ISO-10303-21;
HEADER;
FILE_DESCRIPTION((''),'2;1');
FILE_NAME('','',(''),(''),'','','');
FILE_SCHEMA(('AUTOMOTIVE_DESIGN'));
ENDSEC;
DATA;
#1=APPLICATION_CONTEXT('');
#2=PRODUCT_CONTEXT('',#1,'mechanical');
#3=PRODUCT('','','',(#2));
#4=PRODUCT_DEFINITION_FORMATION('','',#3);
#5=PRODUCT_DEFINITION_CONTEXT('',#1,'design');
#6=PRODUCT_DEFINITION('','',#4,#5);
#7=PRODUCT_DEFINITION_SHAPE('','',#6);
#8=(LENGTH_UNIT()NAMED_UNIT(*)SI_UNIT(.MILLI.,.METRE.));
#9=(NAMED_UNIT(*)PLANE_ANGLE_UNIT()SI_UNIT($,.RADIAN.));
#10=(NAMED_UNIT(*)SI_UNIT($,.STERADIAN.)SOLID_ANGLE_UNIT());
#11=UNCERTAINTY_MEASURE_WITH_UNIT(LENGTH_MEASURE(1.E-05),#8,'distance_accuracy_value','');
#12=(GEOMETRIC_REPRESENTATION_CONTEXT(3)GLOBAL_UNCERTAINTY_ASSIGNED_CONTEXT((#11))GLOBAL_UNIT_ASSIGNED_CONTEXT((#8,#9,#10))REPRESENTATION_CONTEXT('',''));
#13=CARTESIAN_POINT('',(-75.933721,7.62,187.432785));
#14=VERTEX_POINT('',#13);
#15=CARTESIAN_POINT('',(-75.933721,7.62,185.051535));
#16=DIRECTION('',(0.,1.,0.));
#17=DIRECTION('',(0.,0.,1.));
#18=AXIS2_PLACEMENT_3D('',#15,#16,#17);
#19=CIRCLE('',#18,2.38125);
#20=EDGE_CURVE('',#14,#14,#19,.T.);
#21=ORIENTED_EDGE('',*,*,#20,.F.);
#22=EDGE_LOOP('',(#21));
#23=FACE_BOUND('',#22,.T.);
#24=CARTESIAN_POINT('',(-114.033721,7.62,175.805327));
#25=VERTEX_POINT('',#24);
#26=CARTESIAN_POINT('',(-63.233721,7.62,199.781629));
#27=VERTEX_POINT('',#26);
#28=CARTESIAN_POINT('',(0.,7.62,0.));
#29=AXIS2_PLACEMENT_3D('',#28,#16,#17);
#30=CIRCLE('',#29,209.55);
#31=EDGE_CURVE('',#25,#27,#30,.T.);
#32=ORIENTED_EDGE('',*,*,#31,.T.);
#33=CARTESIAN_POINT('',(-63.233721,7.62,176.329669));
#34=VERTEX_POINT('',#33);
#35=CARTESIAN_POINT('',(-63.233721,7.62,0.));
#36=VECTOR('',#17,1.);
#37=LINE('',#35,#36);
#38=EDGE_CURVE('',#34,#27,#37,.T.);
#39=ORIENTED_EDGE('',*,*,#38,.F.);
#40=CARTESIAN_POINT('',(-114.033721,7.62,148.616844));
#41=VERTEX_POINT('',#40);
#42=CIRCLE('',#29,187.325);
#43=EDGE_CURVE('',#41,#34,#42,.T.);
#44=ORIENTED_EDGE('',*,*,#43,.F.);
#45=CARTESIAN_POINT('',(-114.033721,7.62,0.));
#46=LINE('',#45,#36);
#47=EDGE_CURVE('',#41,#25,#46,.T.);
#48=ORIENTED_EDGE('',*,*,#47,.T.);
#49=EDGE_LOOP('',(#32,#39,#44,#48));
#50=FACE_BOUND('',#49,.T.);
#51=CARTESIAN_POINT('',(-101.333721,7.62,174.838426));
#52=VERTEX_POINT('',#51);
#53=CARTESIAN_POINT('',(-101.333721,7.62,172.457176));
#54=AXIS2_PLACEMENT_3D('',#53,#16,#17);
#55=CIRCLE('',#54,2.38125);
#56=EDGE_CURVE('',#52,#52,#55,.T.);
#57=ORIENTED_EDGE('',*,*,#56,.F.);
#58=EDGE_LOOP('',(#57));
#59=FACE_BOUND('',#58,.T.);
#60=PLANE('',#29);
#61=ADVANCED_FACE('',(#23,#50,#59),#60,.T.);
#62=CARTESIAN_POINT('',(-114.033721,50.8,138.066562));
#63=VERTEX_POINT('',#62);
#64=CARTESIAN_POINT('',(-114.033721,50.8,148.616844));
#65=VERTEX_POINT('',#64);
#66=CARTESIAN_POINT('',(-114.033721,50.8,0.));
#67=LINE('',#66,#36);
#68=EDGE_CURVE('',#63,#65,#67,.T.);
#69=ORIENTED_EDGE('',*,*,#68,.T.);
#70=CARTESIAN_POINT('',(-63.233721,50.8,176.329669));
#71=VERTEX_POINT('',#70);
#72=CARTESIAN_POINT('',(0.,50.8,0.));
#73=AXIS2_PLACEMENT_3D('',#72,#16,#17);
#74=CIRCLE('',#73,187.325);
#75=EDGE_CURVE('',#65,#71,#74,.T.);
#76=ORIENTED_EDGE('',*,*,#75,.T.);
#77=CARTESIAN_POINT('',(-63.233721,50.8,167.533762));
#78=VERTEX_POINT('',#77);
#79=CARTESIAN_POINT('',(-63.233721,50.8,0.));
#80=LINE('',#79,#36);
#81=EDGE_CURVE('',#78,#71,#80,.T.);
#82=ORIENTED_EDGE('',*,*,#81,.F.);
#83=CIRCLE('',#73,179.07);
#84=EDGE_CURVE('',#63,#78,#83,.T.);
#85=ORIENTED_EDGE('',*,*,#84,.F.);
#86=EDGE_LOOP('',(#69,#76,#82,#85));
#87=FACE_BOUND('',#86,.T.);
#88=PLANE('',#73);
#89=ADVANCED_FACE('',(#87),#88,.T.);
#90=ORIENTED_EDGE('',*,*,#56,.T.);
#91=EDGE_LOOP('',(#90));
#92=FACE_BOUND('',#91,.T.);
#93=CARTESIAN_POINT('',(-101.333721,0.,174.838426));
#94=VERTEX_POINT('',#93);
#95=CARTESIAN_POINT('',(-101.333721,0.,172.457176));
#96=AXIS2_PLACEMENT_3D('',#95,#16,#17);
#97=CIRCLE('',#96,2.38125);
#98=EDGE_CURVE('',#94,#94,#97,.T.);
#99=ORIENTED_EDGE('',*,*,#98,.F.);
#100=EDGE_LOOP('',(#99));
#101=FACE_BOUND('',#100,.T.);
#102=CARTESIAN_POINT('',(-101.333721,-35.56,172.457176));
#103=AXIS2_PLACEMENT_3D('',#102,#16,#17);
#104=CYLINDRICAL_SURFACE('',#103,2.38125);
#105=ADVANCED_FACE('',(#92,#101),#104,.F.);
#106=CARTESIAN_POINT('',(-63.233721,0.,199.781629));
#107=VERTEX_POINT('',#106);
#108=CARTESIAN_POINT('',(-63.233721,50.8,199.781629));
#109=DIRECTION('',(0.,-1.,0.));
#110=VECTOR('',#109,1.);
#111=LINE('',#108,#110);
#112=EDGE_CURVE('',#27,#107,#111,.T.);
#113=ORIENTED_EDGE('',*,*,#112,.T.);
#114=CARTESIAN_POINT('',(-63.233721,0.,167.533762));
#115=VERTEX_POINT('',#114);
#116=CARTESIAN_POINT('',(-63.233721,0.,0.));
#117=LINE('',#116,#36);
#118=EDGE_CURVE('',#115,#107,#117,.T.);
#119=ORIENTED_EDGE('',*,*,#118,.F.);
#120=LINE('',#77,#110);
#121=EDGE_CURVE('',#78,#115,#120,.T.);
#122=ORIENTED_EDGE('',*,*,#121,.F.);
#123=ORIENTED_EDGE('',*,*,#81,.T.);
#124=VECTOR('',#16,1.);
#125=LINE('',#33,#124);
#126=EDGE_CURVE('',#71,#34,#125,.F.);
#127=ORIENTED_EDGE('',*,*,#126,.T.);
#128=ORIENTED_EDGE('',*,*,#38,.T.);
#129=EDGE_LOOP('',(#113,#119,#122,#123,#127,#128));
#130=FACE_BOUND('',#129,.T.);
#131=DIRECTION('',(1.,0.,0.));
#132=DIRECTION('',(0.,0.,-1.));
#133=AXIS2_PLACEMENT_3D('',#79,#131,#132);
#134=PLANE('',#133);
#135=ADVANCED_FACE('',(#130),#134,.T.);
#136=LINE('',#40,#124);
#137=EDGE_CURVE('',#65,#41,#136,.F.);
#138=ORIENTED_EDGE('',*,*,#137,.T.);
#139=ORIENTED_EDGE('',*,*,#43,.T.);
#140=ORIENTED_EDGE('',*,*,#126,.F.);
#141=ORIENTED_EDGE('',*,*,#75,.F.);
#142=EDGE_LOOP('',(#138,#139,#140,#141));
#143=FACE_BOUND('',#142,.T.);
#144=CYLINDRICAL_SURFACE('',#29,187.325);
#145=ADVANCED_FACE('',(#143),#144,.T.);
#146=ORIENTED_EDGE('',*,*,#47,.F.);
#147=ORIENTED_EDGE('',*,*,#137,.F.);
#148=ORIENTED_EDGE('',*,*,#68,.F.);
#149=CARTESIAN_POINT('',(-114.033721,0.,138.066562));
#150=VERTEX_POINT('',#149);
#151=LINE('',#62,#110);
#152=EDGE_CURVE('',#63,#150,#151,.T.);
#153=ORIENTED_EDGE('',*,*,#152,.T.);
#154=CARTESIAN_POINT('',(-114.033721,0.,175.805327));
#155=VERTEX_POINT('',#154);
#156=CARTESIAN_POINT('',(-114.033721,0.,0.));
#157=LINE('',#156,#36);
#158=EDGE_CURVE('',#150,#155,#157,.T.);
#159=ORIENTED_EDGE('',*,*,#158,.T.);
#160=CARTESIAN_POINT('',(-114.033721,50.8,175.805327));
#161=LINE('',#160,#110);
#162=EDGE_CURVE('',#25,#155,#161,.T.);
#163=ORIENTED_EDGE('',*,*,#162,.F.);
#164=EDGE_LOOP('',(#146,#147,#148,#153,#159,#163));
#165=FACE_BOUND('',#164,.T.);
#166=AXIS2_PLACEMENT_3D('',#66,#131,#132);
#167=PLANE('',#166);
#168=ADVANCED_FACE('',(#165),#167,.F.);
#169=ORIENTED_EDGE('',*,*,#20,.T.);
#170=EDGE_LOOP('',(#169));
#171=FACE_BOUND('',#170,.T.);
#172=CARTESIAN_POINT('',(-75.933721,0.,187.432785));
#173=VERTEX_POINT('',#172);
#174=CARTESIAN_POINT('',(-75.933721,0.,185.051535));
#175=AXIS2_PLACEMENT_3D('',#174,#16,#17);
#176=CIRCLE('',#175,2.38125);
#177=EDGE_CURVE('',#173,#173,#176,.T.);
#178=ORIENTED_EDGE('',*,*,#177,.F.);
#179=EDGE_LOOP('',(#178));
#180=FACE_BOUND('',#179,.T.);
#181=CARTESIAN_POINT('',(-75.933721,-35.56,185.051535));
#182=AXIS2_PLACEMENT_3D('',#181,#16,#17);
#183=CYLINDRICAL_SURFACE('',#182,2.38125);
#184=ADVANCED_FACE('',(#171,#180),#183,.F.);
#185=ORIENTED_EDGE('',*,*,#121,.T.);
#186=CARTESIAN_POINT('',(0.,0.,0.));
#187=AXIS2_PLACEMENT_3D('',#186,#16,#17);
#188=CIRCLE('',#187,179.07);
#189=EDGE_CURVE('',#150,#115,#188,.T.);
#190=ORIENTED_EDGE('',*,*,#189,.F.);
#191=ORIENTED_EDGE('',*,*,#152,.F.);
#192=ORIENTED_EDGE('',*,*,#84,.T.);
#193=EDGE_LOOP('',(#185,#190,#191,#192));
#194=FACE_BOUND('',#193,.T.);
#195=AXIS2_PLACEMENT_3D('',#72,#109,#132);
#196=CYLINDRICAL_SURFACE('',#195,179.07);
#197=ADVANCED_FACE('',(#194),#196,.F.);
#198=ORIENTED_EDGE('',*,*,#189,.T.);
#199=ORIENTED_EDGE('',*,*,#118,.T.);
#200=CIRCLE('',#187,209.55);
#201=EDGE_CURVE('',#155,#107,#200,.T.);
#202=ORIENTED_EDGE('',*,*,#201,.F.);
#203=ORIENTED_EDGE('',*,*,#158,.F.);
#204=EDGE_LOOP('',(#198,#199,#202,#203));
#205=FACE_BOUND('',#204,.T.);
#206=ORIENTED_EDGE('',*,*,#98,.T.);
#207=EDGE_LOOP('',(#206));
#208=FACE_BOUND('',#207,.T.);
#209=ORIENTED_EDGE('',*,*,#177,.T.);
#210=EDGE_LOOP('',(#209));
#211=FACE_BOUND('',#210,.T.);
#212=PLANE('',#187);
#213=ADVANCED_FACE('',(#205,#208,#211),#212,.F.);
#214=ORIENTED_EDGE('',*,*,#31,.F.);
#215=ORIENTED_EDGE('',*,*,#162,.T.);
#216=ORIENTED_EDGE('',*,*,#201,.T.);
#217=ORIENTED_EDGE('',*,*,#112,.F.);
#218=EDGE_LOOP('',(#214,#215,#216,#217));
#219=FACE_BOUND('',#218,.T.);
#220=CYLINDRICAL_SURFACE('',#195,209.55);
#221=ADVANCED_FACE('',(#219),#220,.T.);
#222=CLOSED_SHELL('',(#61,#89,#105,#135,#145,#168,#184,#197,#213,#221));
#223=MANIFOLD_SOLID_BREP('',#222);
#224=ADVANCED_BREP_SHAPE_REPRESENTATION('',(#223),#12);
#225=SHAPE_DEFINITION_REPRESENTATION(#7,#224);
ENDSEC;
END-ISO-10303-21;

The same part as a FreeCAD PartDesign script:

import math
import FreeCAD as App
import Part
import Sketcher

V = App.Vector
Q = App.Units.Quantity

doc = App.newDocument("Part")
params = doc.addObject("Spreadsheet::Sheet", "Params")
for row, (alias, value) in enumerate([
    ("sketch1_radius", "7.05 in"),
    ("sketch1_radius2", "8.25 in"),
    ("pad1_length", "2 in"),
    ("sketch2_diameter", "16.5 in"),
    ("sketch2_diameter2", "14.75 in"),
    ("pocket1_length", "1.7 in"),
    ("sketch3_diameter", "0.1875 in"),
    ("pocket2_length", "1.7 in"),
], start=1):
    params.set(f"A{row}", alias)
    params.set(f"B{row}", "=" + value)
    params.setAlias(f"B{row}", alias)

body = doc.addObject("PartDesign::Body", "Body")

# Sketch on XZ plane
sketch1 = doc.addObject("Sketcher::SketchObject", "Sketch")
body.addObject(sketch1)
sketch1.AttachmentSupport = (doc.XZ_Plane, [""])
sketch1.MapMode = "FlatFace"
sketch1.addGeometry([
    Part.LineSegment(V(-63, 200, 0), V(-63, 168, 0)),
    Part.ArcOfCircle(Part.Circle(V(0, 0, 0), V(0, 0, 1), 179), math.radians(110.68), math.radians(129.55)),
    Part.LineSegment(V(-114, 138, 0), V(-114, 176, 0)),
    Part.ArcOfCircle(Part.Circle(V(0, 0, 0), V(0, 0, 1), 210), math.radians(107.56), math.radians(122.97)),
], False)
sketch1.addConstraint([
    Sketcher.Constraint("Coincident", 0, 2, 1, 1),
    Sketcher.Constraint("Coincident", 1, 2, 2, 1),
    Sketcher.Constraint("Coincident", 2, 2, 3, 2),
    Sketcher.Constraint("Coincident", 3, 1, 0, 1),
    Sketcher.Constraint("Vertical", 0),
    Sketcher.Constraint("Vertical", 2),
    Sketcher.Constraint("Coincident", 1, 3, -1, 1),
    Sketcher.Constraint("Coincident", 3, 3, -1, 1),
    Sketcher.Constraint("Radius", 1, Q("7.05 in")),
    Sketcher.Constraint("Radius", 3, Q("8.25 in")),
    Sketcher.Constraint("DistanceX", 1, 2, 0, 2, Q("2 in")),
    Sketcher.Constraint("DistanceY", 2, 2, 3, 1, 23.976301),
])
sketch1.setExpression("Constraints[8]", "Params.sketch1_radius")
sketch1.setExpression("Constraints[9]", "Params.sketch1_radius2")
pad1 = doc.addObject("PartDesign::Pad", "Pad")
body.addObject(pad1)
pad1.Profile = sketch1
pad1.setExpression("Length", "Params.pad1_length")
pad1.Reversed = True

# Sketch on XZ plane
sketch2 = doc.addObject("Sketcher::SketchObject", "Sketch001")
body.addObject(sketch2)
sketch2.AttachmentSupport = (doc.XZ_Plane, [""])
sketch2.MapMode = "FlatFace"
sketch2.AttachmentOffset = App.Placement(V(0, 0, -0.3 * 25.4), App.Rotation())
sketch2.addGeometry([
    Part.Circle(V(0, 0, 0), V(0, 0, 1), 210),
    Part.Circle(V(0, 0, 0), V(0, 0, 1), 187),
], False)
sketch2.addConstraint([
    Sketcher.Constraint("Coincident", 0, 3, -1, 1),
    Sketcher.Constraint("Coincident", 1, 3, -1, 1),
    Sketcher.Constraint("Diameter", 0, Q("16.5 in")),
    Sketcher.Constraint("Diameter", 1, Q("14.75 in")),
])
sketch2.setExpression("Constraints[2]", "Params.sketch2_diameter")
sketch2.setExpression("Constraints[3]", "Params.sketch2_diameter2")
pocket1 = doc.addObject("PartDesign::Pocket", "Pocket")
body.addObject(pocket1)
pocket1.Profile = sketch2
pocket1.setExpression("Length", "Params.pocket1_length")

# Sketch on XZ plane
sketch3 = doc.addObject("Sketcher::SketchObject", "Sketch002")
body.addObject(sketch3)
sketch3.AttachmentSupport = (doc.XZ_Plane, [""])
sketch3.MapMode = "FlatFace"
sketch3.AttachmentOffset = App.Placement(V(0, 0, -0.3 * 25.4), App.Rotation())
sketch3.addGeometry([
    Part.Circle(V(-101.3, 172.5, 0), V(0, 0, 1), 2.4),
    Part.Circle(V(-75.9, 185.1, 0), V(0, 0, 1), 2.4),
], False)
sketch3.addConstraint([
    Sketcher.Constraint("Equal", 0, 1),
    Sketcher.Constraint("Diameter", 0, Q("0.1875 in")),
    Sketcher.Constraint("DistanceX", 0, 3, 1, 3, Q("1 in")),
    Sketcher.Constraint("DistanceX", 0, 3, -1, 1, 101.333721),
    Sketcher.Constraint("DistanceY", 0, 3, 1, 3, 12.594359),
    Sketcher.Constraint("DistanceY", -1, 1, 0, 3, 172.457176),
])
sketch3.setExpression("Constraints[1]", "Params.sketch3_diameter")
pocket2 = doc.addObject("PartDesign::Pocket", "Pocket001")
body.addObject(pocket2)
pocket2.Profile = sketch3
pocket2.setExpression("Length", "Params.pocket2_length")
pocket2.Reversed = True

doc.recompute()
